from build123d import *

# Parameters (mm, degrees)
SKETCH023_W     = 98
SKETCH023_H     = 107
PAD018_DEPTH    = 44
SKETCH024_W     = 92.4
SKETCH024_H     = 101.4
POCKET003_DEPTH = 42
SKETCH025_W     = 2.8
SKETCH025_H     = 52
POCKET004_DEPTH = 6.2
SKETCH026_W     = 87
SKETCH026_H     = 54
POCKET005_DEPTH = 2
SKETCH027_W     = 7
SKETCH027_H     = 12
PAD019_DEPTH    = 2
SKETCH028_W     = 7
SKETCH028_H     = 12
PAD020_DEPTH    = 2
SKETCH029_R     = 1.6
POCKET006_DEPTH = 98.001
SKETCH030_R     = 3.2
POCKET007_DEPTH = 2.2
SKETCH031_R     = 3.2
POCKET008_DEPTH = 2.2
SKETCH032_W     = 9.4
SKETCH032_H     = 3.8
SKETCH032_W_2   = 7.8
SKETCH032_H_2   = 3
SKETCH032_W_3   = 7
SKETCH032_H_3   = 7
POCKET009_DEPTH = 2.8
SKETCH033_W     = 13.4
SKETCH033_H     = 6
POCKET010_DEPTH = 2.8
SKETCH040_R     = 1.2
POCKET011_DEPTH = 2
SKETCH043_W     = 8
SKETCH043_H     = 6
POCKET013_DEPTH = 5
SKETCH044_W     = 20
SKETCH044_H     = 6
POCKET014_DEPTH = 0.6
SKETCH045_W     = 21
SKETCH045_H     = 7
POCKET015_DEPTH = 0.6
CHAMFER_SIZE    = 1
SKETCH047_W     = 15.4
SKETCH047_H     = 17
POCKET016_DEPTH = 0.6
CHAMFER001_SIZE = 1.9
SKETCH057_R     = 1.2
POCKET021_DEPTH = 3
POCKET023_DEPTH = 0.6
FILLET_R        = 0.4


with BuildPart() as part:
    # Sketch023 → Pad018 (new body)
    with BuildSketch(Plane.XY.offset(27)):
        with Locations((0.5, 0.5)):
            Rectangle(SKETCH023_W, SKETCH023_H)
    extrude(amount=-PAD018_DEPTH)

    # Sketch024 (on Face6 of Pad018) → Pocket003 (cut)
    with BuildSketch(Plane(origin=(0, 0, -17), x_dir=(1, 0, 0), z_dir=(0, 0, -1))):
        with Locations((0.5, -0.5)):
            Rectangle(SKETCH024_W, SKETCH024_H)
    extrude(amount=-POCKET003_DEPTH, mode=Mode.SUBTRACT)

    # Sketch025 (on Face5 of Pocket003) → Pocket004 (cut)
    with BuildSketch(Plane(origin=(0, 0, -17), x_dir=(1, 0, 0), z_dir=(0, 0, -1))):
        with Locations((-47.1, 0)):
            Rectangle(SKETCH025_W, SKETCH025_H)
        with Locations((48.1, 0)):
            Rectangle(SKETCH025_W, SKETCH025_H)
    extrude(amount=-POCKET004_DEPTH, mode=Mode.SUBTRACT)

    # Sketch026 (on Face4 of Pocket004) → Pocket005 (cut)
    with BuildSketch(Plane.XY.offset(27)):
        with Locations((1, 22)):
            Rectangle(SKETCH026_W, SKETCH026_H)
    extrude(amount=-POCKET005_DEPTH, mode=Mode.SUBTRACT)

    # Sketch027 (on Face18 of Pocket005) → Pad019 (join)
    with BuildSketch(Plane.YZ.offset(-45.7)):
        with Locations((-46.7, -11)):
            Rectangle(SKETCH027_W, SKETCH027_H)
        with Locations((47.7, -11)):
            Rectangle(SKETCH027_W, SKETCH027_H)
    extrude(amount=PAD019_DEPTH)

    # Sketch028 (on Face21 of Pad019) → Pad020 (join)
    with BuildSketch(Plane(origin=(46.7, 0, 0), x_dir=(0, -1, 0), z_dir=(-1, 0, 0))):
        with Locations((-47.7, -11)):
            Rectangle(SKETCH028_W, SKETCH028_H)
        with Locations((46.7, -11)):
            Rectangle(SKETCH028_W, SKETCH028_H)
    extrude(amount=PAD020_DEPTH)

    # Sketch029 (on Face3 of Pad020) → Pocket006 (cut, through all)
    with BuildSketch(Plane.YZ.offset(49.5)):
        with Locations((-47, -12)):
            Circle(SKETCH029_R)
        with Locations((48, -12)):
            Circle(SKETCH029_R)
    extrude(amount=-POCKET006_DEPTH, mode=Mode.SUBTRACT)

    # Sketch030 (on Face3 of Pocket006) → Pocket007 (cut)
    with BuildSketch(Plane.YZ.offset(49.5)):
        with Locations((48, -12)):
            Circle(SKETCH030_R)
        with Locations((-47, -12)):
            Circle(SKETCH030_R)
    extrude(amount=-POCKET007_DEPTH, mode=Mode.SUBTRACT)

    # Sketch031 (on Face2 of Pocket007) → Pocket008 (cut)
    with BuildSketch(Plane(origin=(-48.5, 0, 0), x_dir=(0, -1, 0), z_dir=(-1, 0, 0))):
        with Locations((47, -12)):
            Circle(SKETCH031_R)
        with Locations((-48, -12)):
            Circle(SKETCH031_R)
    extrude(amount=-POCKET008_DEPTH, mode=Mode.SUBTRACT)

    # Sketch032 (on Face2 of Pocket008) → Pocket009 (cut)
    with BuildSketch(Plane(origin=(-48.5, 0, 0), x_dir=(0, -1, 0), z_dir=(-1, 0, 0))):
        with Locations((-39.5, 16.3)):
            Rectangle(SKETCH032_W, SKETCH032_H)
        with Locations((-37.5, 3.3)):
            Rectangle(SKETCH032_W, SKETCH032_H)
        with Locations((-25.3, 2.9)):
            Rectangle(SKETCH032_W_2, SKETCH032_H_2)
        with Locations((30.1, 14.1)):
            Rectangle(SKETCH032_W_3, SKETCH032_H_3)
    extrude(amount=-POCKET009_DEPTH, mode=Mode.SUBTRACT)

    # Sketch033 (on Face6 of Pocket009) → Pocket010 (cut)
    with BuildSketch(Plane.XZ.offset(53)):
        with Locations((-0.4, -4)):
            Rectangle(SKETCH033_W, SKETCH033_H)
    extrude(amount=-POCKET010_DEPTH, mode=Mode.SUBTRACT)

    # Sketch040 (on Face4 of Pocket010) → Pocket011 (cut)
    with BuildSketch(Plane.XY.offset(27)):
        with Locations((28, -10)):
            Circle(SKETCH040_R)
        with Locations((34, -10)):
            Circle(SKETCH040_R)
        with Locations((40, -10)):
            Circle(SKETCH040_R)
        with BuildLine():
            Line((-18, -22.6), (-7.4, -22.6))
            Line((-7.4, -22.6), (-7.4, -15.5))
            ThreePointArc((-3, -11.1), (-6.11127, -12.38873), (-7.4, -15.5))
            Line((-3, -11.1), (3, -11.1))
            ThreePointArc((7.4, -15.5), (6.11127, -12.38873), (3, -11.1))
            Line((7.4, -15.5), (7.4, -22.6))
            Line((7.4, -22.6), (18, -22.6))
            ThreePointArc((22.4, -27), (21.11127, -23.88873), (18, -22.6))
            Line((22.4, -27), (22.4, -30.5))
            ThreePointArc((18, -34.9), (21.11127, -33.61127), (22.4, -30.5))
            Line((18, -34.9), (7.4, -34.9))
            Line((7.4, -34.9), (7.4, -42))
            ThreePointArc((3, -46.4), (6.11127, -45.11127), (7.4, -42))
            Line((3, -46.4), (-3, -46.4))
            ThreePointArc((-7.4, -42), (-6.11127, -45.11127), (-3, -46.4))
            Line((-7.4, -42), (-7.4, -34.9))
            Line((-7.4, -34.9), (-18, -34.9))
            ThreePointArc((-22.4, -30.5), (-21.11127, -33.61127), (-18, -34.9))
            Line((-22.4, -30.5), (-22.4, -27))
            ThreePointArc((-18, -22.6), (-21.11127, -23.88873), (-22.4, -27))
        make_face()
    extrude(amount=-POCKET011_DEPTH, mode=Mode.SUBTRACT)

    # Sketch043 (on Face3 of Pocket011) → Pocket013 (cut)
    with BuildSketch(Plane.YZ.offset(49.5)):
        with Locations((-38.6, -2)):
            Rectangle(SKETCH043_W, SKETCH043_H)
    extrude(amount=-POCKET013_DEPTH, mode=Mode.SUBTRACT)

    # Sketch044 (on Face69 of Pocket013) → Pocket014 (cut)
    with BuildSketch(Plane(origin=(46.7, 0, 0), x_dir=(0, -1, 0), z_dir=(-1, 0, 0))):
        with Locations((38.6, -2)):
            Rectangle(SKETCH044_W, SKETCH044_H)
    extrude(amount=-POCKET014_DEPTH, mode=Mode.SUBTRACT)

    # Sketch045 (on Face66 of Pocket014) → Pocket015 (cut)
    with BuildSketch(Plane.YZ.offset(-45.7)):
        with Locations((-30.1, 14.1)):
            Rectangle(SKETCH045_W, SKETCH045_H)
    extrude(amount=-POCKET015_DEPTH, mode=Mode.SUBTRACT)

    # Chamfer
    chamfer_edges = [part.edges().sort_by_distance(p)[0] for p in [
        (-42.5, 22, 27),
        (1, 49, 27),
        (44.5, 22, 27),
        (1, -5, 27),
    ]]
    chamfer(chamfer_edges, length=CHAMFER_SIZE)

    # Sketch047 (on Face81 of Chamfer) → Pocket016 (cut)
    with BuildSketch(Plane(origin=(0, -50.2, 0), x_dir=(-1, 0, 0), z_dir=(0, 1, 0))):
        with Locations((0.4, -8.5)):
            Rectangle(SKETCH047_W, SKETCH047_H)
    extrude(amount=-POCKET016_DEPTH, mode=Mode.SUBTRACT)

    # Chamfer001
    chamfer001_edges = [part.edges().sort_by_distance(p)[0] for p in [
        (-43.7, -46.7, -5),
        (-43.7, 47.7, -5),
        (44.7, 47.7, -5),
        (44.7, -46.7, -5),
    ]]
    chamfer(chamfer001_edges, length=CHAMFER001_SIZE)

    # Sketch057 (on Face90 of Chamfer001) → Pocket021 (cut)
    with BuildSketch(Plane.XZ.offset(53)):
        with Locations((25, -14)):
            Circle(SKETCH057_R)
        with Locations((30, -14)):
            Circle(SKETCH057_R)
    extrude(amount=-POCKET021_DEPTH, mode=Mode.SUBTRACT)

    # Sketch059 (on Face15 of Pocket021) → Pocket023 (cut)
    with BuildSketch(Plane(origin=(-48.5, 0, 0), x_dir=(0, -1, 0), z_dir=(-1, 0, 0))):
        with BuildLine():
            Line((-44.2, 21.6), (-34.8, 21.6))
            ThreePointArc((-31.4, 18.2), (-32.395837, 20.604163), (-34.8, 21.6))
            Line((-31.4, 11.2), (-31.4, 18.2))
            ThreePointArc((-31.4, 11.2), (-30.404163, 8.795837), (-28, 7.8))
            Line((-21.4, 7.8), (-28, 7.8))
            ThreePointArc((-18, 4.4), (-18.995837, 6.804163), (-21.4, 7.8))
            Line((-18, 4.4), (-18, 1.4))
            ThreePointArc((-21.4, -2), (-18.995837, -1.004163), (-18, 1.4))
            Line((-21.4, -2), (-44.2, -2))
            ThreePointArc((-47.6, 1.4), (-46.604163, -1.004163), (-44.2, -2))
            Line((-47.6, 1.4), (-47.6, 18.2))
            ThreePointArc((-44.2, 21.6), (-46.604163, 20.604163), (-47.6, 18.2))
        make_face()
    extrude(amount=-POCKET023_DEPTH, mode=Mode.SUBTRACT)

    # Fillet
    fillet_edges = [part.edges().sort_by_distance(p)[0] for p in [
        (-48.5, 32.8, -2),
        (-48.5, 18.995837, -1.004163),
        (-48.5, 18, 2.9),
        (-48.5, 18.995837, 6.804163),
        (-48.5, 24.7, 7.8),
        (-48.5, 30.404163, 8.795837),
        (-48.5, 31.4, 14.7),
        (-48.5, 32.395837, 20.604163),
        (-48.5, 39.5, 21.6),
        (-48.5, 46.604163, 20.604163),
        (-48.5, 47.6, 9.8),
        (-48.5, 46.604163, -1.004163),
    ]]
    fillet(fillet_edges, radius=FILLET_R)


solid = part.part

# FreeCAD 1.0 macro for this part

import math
import FreeCAD as App
import Part
import Sketcher
Q = App.Units.Quantity


def edges_at(feature, points):
    """Names of the edges that pass closest to the given points."""
    edges = feature.Shape.Edges
    near = lambda p: min(range(len(edges)), key=lambda i: edges[i].distToShape(Part.Vertex(*p))[0])
    return sorted({f"Edge{near(p) + 1}" for p in points})

doc = App.newDocument("Part")
body = doc.addObject("PartDesign::Body", "Body")

# Sketch on XY plane
sketch1 = doc.addObject("Sketcher::SketchObject", "Sketch")
body.addObject(sketch1)
sketch1.AttachmentSupport = (doc.XY_Plane, [""])
sketch1.MapMode = "FlatFace"
sketch1.AttachmentOffset = App.Placement(App.Vector(0, 0, 27), App.Rotation())
sketch1.addGeometry([
    Part.LineSegment(App.Vector(-48.5, 54, 0), App.Vector(-48.5, -53, 0)),
    Part.LineSegment(App.Vector(-48.5, -53, 0), App.Vector(49.5, -53, 0)),
    Part.LineSegment(App.Vector(49.5, -53, 0), App.Vector(49.5, 54, 0)),
    Part.LineSegment(App.Vector(49.5, 54, 0), App.Vector(-48.5, 54, 0)),
], False)
sketch1.addConstraint([
    Sketcher.Constraint("Coincident", 0, 2, 1, 1),
    Sketcher.Constraint("Coincident", 1, 2, 2, 1),
    Sketcher.Constraint("Coincident", 2, 2, 3, 1),
    Sketcher.Constraint("Coincident", 3, 2, 0, 1),
    Sketcher.Constraint("Vertical", 0),
    Sketcher.Constraint("Horizontal", 1),
    Sketcher.Constraint("Vertical", 2),
    Sketcher.Constraint("Horizontal", 3),
    Sketcher.Constraint("DistanceX", 1, 1, 1, 2, Q("98 mm")),
    Sketcher.Constraint("DistanceY", 0, 2, 0, 1, Q("107 mm")),
    Sketcher.Constraint("DistanceY", 0, 2, -1, 1, Q("53 mm")),
    Sketcher.Constraint("DistanceX", 0, 2, -1, 1, Q("48.5 mm")),
])
pad1 = doc.addObject("PartDesign::Pad", "Pad")
body.addObject(pad1)
pad1.Profile = sketch1
pad1.Length = 44
pad1.Reversed = True

# Sketch on XY plane
sketch2 = doc.addObject("Sketcher::SketchObject", "Sketch001")
body.addObject(sketch2)
sketch2.AttachmentSupport = (doc.XY_Plane, [""])
sketch2.MapMode = "FlatFace"
sketch2.AttachmentOffset = App.Placement(App.Vector(0, 0, -17), App.Rotation())
sketch2.addGeometry([
    Part.LineSegment(App.Vector(-45.7, -50.2, 0), App.Vector(-45.7, 51.2, 0)),
    Part.LineSegment(App.Vector(-45.7, 51.2, 0), App.Vector(46.7, 51.2, 0)),
    Part.LineSegment(App.Vector(46.7, 51.2, 0), App.Vector(46.7, -50.2, 0)),
    Part.LineSegment(App.Vector(46.7, -50.2, 0), App.Vector(-45.7, -50.2, 0)),
], False)
sketch2.addConstraint([
    Sketcher.Constraint("Coincident", 0, 2, 1, 1),
    Sketcher.Constraint("Coincident", 1, 2, 2, 1),
    Sketcher.Constraint("Coincident", 2, 2, 3, 1),
    Sketcher.Constraint("Coincident", 3, 2, 0, 1),
    Sketcher.Constraint("Vertical", 0),
    Sketcher.Constraint("Horizontal", 1),
    Sketcher.Constraint("Vertical", 2),
    Sketcher.Constraint("Horizontal", 3),
    Sketcher.Constraint("DistanceX", 1, 1, 1, 2, Q("92.4 mm")),
    Sketcher.Constraint("DistanceY", 0, 1, 0, 2, Q("101.4 mm")),
    Sketcher.Constraint("DistanceX", 0, 2, -1, 1, Q("45.7 mm")),
    Sketcher.Constraint("DistanceY", -1, 1, 0, 2, Q("51.2 mm")),
])
pocket1 = doc.addObject("PartDesign::Pocket", "Pocket")
body.addObject(pocket1)
pocket1.Profile = sketch2
pocket1.Length = 42
pocket1.Reversed = True

# Sketch on XY plane
sketch3 = doc.addObject("Sketcher::SketchObject", "Sketch002")
body.addObject(sketch3)
sketch3.AttachmentSupport = (doc.XY_Plane, [""])
sketch3.MapMode = "FlatFace"
sketch3.AttachmentOffset = App.Placement(App.Vector(0, 0, -17), App.Rotation())
sketch3.addGeometry([
    Part.LineSegment(App.Vector(-48.5, -26, 0), App.Vector(-48.5, 26, 0)),  # 0
    Part.LineSegment(App.Vector(-48.5, 26, 0), App.Vector(-45.7, 26, 0)),  # 1
    Part.LineSegment(App.Vector(-45.7, 26, 0), App.Vector(-45.7, -26, 0)),  # 2
    Part.LineSegment(App.Vector(-45.7, -26, 0), App.Vector(-48.5, -26, 0)),  # 3
    Part.LineSegment(App.Vector(46.7, -26, 0), App.Vector(46.7, 26, 0)),  # 4
    Part.LineSegment(App.Vector(46.7, 26, 0), App.Vector(49.5, 26, 0)),  # 5
    Part.LineSegment(App.Vector(49.5, 26, 0), App.Vector(49.5, -26, 0)),  # 6
    Part.LineSegment(App.Vector(49.5, -26, 0), App.Vector(46.7, -26, 0)),  # 7
], False)
sketch3.addConstraint([
    Sketcher.Constraint("Coincident", 0, 2, 1, 1),
    Sketcher.Constraint("Coincident", 1, 2, 2, 1),
    Sketcher.Constraint("Coincident", 2, 2, 3, 1),
    Sketcher.Constraint("Coincident", 3, 2, 0, 1),
    Sketcher.Constraint("Coincident", 4, 2, 5, 1),
    Sketcher.Constraint("Coincident", 5, 2, 6, 1),
    Sketcher.Constraint("Coincident", 6, 2, 7, 1),
    Sketcher.Constraint("Coincident", 7, 2, 4, 1),
    Sketcher.Constraint("Vertical", 0),
    Sketcher.Constraint("Horizontal", 1),
    Sketcher.Constraint("Vertical", 2),
    Sketcher.Constraint("Horizontal", 3),
    Sketcher.Constraint("Vertical", 4),
    Sketcher.Constraint("Horizontal", 5),
    Sketcher.Constraint("Vertical", 6),
    Sketcher.Constraint("Horizontal", 7),
    Sketcher.Constraint("Horizontal", 1, 2, 4, 2),
    Sketcher.Constraint("Horizontal", 3, 2, 6, 2),
    Sketcher.Constraint("Equal", 3, 5),
    Sketcher.Constraint("DistanceY", 0, 1, 0, 2, Q("52 mm")),
    Sketcher.Constraint("DistanceX", 1, 1, 1, 2, Q("2.8 mm")),
    Sketcher.Constraint("DistanceY", -1, 1, 0, 2, Q("26 mm")),
    Sketcher.Constraint("DistanceX", 0, 2, 5, 2, Q("98 mm")),
    Sketcher.Constraint("DistanceX", 0, 2, -1, 1, Q("48.5 mm")),
])
pocket2 = doc.addObject("PartDesign::Pocket", "Pocket001")
body.addObject(pocket2)
pocket2.Profile = sketch3
pocket2.Length = 6.2
pocket2.Reversed = True

# Sketch on XY plane
sketch4 = doc.addObject("Sketcher::SketchObject", "Sketch003")
body.addObject(sketch4)
sketch4.AttachmentSupport = (doc.XY_Plane, [""])
sketch4.MapMode = "FlatFace"
sketch4.AttachmentOffset = App.Placement(App.Vector(0, 0, 27), App.Rotation())
sketch4.addGeometry([
    Part.LineSegment(App.Vector(-42.5, 49, 0), App.Vector(-42.5, -5, 0)),
    Part.LineSegment(App.Vector(-42.5, -5, 0), App.Vector(44.5, -5, 0)),
    Part.LineSegment(App.Vector(44.5, -5, 0), App.Vector(44.5, 49, 0)),
    Part.LineSegment(App.Vector(44.5, 49, 0), App.Vector(-42.5, 49, 0)),
], False)
sketch4.addConstraint([
    Sketcher.Constraint("Coincident", 0, 2, 1, 1),
    Sketcher.Constraint("Coincident", 1, 2, 2, 1),
    Sketcher.Constraint("Coincident", 2, 2, 3, 1),
    Sketcher.Constraint("Coincident", 3, 2, 0, 1),
    Sketcher.Constraint("Vertical", 0),
    Sketcher.Constraint("Horizontal", 1),
    Sketcher.Constraint("Vertical", 2),
    Sketcher.Constraint("Horizontal", 3),
    Sketcher.Constraint("DistanceX", 1, 1, 1, 2, Q("87 mm")),
    Sketcher.Constraint("DistanceY", 0, 2, 0, 1, Q("54 mm")),
    Sketcher.Constraint("DistanceY", 0, 2, -1, 1, Q("5 mm")),
    Sketcher.Constraint("DistanceX", 0, 2, -1, 1, Q("42.5 mm")),
])
pocket3 = doc.addObject("PartDesign::Pocket", "Pocket002")
body.addObject(pocket3)
pocket3.Profile = sketch4
pocket3.Length = 2

# Sketch on YZ plane
sketch5 = doc.addObject("Sketcher::SketchObject", "Sketch004")
body.addObject(sketch5)
sketch5.AttachmentSupport = (doc.YZ_Plane, [""])
sketch5.MapMode = "FlatFace"
sketch5.AttachmentOffset = App.Placement(App.Vector(0, 0, -45.7), App.Rotation())
sketch5.addGeometry([
    Part.LineSegment(App.Vector(-50.2, -5, 0), App.Vector(-50.2, -17, 0)),  # 0
    Part.LineSegment(App.Vector(-50.2, -17, 0), App.Vector(-43.2, -17, 0)),  # 1
    Part.LineSegment(App.Vector(-43.2, -17, 0), App.Vector(-43.2, -5, 0)),  # 2
    Part.LineSegment(App.Vector(-43.2, -5, 0), App.Vector(-50.2, -5, 0)),  # 3
    Part.LineSegment(App.Vector(44.2, -5, 0), App.Vector(44.2, -17, 0)),  # 4
    Part.LineSegment(App.Vector(44.2, -17, 0), App.Vector(51.2, -17, 0)),  # 5
    Part.LineSegment(App.Vector(51.2, -17, 0), App.Vector(51.2, -5, 0)),  # 6
    Part.LineSegment(App.Vector(51.2, -5, 0), App.Vector(44.2, -5, 0)),  # 7
], False)
sketch5.addConstraint([
    Sketcher.Constraint("Coincident", 0, 2, 1, 1),
    Sketcher.Constraint("Coincident", 1, 2, 2, 1),
    Sketcher.Constraint("Coincident", 2, 2, 3, 1),
    Sketcher.Constraint("Coincident", 3, 2, 0, 1),
    Sketcher.Constraint("Coincident", 4, 2, 5, 1),
    Sketcher.Constraint("Coincident", 5, 2, 6, 1),
    Sketcher.Constraint("Coincident", 6, 2, 7, 1),
    Sketcher.Constraint("Coincident", 7, 2, 4, 1),
    Sketcher.Constraint("Vertical", 0),
    Sketcher.Constraint("Horizontal", 1),
    Sketcher.Constraint("Vertical", 2),
    Sketcher.Constraint("Horizontal", 3),
    Sketcher.Constraint("Vertical", 4),
    Sketcher.Constraint("Horizontal", 5),
    Sketcher.Constraint("Vertical", 6),
    Sketcher.Constraint("Horizontal", 7),
    Sketcher.Constraint("Horizontal", 1, 2, 4, 2),
    Sketcher.Constraint("Horizontal", 3, 2, 6, 2),
    Sketcher.Constraint("Equal", 3, 5),
    Sketcher.Constraint("DistanceX", 1, 1, 1, 2, Q("7 mm")),
    Sketcher.Constraint("DistanceY", 0, 2, 0, 1, Q("12 mm")),
    Sketcher.Constraint("DistanceY", 0, 2, -1, 1, Q("17 mm")),
    Sketcher.Constraint("DistanceX", 0, 2, -1, 1, Q("50.2 mm")),
    Sketcher.Constraint("DistanceX", -1, 1, 4, 2, Q("44.2 mm")),
])
pad2 = doc.addObject("PartDesign::Pad", "Pad001")
body.addObject(pad2)
pad2.Profile = sketch5
pad2.Length = 2

# Sketch on YZ plane
sketch6 = doc.addObject("Sketcher::SketchObject", "Sketch005")
body.addObject(sketch6)
sketch6.AttachmentSupport = (doc.YZ_Plane, [""])
sketch6.MapMode = "FlatFace"
sketch6.AttachmentOffset = App.Placement(App.Vector(0, 0, 46.7), App.Rotation())
sketch6.addGeometry([
    Part.LineSegment(App.Vector(51.2, -5, 0), App.Vector(51.2, -17, 0)),  # 0
    Part.LineSegment(App.Vector(51.2, -17, 0), App.Vector(44.2, -17, 0)),  # 1
    Part.LineSegment(App.Vector(44.2, -17, 0), App.Vector(44.2, -5, 0)),  # 2
    Part.LineSegment(App.Vector(44.2, -5, 0), App.Vector(51.2, -5, 0)),  # 3
    Part.LineSegment(App.Vector(-43.2, -5, 0), App.Vector(-43.2, -17, 0)),  # 4
    Part.LineSegment(App.Vector(-43.2, -17, 0), App.Vector(-50.2, -17, 0)),  # 5
    Part.LineSegment(App.Vector(-50.2, -17, 0), App.Vector(-50.2, -5, 0)),  # 6
    Part.LineSegment(App.Vector(-50.2, -5, 0), App.Vector(-43.2, -5, 0)),  # 7
], False)
sketch6.addConstraint([
    Sketcher.Constraint("Coincident", 0, 2, 1, 1),
    Sketcher.Constraint("Coincident", 1, 2, 2, 1),
    Sketcher.Constraint("Coincident", 2, 2, 3, 1),
    Sketcher.Constraint("Coincident", 3, 2, 0, 1),
    Sketcher.Constraint("Coincident", 4, 2, 5, 1),
    Sketcher.Constraint("Coincident", 5, 2, 6, 1),
    Sketcher.Constraint("Coincident", 6, 2, 7, 1),
    Sketcher.Constraint("Coincident", 7, 2, 4, 1),
    Sketcher.Constraint("Vertical", 0),
    Sketcher.Constraint("Horizontal", 1),
    Sketcher.Constraint("Vertical", 2),
    Sketcher.Constraint("Horizontal", 3),
    Sketcher.Constraint("Vertical", 4),
    Sketcher.Constraint("Horizontal", 5),
    Sketcher.Constraint("Vertical", 6),
    Sketcher.Constraint("Horizontal", 7),
    Sketcher.Constraint("Horizontal", 1, 2, 4, 2),
    Sketcher.Constraint("Horizontal", 3, 2, 6, 2),
    Sketcher.Constraint("Equal", 3, 5),
    Sketcher.Constraint("DistanceX", 1, 2, 1, 1, Q("7 mm")),
    Sketcher.Constraint("DistanceY", 0, 2, 0, 1, Q("12 mm")),
    Sketcher.Constraint("DistanceY", 0, 2, -1, 1, Q("17 mm")),
    Sketcher.Constraint("DistanceX", -1, 1, 0, 2, Q("51.2 mm")),
    Sketcher.Constraint("DistanceX", 4, 2, -1, 1, Q("43.2 mm")),
])
pad3 = doc.addObject("PartDesign::Pad", "Pad002")
body.addObject(pad3)
pad3.Profile = sketch6
pad3.Length = 2
pad3.Reversed = True

# Sketch on YZ plane
sketch7 = doc.addObject("Sketcher::SketchObject", "Sketch006")
body.addObject(sketch7)
sketch7.AttachmentSupport = (doc.YZ_Plane, [""])
sketch7.MapMode = "FlatFace"
sketch7.AttachmentOffset = App.Placement(App.Vector(0, 0, 49.5), App.Rotation())
sketch7.addGeometry([
    Part.Circle(App.Vector(-47, -12, 0), App.Vector(0, 0, 1), 1.6),
    Part.Circle(App.Vector(48, -12, 0), App.Vector(0, 0, 1), 1.6),
], False)
sketch7.addConstraint([
    Sketcher.Constraint("Equal", 0, 1),
    Sketcher.Constraint("Horizontal", 0, 3, 1, 3),
    Sketcher.Constraint("Diameter", 0, Q("3.2 mm")),
    Sketcher.Constraint("DistanceX", 0, 3, -1, 1, Q("47 mm")),
    Sketcher.Constraint("DistanceY", 0, 3, -1, 1, Q("12 mm")),
    Sketcher.Constraint("DistanceX", -1, 1, 1, 3, Q("48 mm")),
])
pocket4 = doc.addObject("PartDesign::Pocket", "Pocket003")
body.addObject(pocket4)
pocket4.Profile = sketch7
pocket4.Type = "ThroughAll"

# Sketch on YZ plane
sketch8 = doc.addObject("Sketcher::SketchObject", "Sketch007")
body.addObject(sketch8)
sketch8.AttachmentSupport = (doc.YZ_Plane, [""])
sketch8.MapMode = "FlatFace"
sketch8.AttachmentOffset = App.Placement(App.Vector(0, 0, 49.5), App.Rotation())
sketch8.addGeometry([
    Part.Circle(App.Vector(48, -12, 0), App.Vector(0, 0, 1), 3.2),
    Part.Circle(App.Vector(-47, -12, 0), App.Vector(0, 0, 1), 3.2),
], False)
sketch8.addConstraint([
    Sketcher.Constraint("Equal", 0, 1),
    Sketcher.Constraint("Horizontal", 0, 3, 1, 3),
    Sketcher.Constraint("Diameter", 0, Q("6.4 mm")),
    Sketcher.Constraint("DistanceX", -1, 1, 0, 3, Q("48 mm")),
    Sketcher.Constraint("DistanceY", 0, 3, -1, 1, Q("12 mm")),
    Sketcher.Constraint("DistanceX", 1, 3, -1, 1, Q("47 mm")),
])
pocket5 = doc.addObject("PartDesign::Pocket", "Pocket004")
body.addObject(pocket5)
pocket5.Profile = sketch8
pocket5.Length = 2.2

# Sketch on YZ plane
sketch9 = doc.addObject("Sketcher::SketchObject", "Sketch008")
body.addObject(sketch9)
sketch9.AttachmentSupport = (doc.YZ_Plane, [""])
sketch9.MapMode = "FlatFace"
sketch9.AttachmentOffset = App.Placement(App.Vector(0, 0, -48.5), App.Rotation())
sketch9.addGeometry([
    Part.Circle(App.Vector(-47, -12, 0), App.Vector(0, 0, 1), 3.2),
    Part.Circle(App.Vector(48, -12, 0), App.Vector(0, 0, 1), 3.2),
], False)
sketch9.addConstraint([
    Sketcher.Constraint("Equal", 0, 1),
    Sketcher.Constraint("Horizontal", 0, 3, 1, 3),
    Sketcher.Constraint("Diameter", 0, Q("6.4 mm")),
    Sketcher.Constraint("DistanceX", 0, 3, -1, 1, Q("47 mm")),
    Sketcher.Constraint("DistanceY", 0, 3, -1, 1, Q("12 mm")),
    Sketcher.Constraint("DistanceX", -1, 1, 1, 3, Q("48 mm")),
])
pocket6 = doc.addObject("PartDesign::Pocket", "Pocket005")
body.addObject(pocket6)
pocket6.Profile = sketch9
pocket6.Length = 2.2
pocket6.Reversed = True

# Sketch on YZ plane
sketch10 = doc.addObject("Sketcher::SketchObject", "Sketch009")
body.addObject(sketch10)
sketch10.AttachmentSupport = (doc.YZ_Plane, [""])
sketch10.MapMode = "FlatFace"
sketch10.AttachmentOffset = App.Placement(App.Vector(0, 0, -48.5), App.Rotation())
sketch10.addGeometry([
    Part.LineSegment(App.Vector(44.2, 18.2, 0), App.Vector(44.2, 14.4, 0)),  # 0
    Part.LineSegment(App.Vector(44.2, 14.4, 0), App.Vector(34.8, 14.4, 0)),  # 1
    Part.LineSegment(App.Vector(34.8, 14.4, 0), App.Vector(34.8, 18.2, 0)),  # 2
    Part.LineSegment(App.Vector(34.8, 18.2, 0), App.Vector(44.2, 18.2, 0)),  # 3
    Part.LineSegment(App.Vector(42.2, 5.2, 0), App.Vector(42.2, 1.4, 0)),  # 4
    Part.LineSegment(App.Vector(42.2, 1.4, 0), App.Vector(32.8, 1.4, 0)),  # 5
    Part.LineSegment(App.Vector(32.8, 1.4, 0), App.Vector(32.8, 5.2, 0)),  # 6
    Part.LineSegment(App.Vector(32.8, 5.2, 0), App.Vector(42.2, 5.2, 0)),  # 7
    Part.LineSegment(App.Vector(29.2, 4.4, 0), App.Vector(29.2, 1.4, 0)),  # 8
    Part.LineSegment(App.Vector(29.2, 1.4, 0), App.Vector(21.4, 1.4, 0)),  # 9
    Part.LineSegment(App.Vector(21.4, 1.4, 0), App.Vector(21.4, 4.4, 0)),  # 10
    Part.LineSegment(App.Vector(21.4, 4.4, 0), App.Vector(29.2, 4.4, 0)),  # 11
    Part.LineSegment(App.Vector(-26.6, 17.6, 0), App.Vector(-26.6, 10.6, 0)),  # 12
    Part.LineSegment(App.Vector(-26.6, 10.6, 0), App.Vector(-33.6, 10.6, 0)),  # 13
    Part.LineSegment(App.Vector(-33.6, 10.6, 0), App.Vector(-33.6, 17.6, 0)),  # 14
    Part.LineSegment(App.Vector(-33.6, 17.6, 0), App.Vector(-26.6, 17.6, 0)),  # 15
], False)
sketch10.addConstraint([
    Sketcher.Constraint("Coincident", 0, 2, 1, 1),
    Sketcher.Constraint("Coincident", 1, 2, 2, 1),
    Sketcher.Constraint("Coincident", 2, 2, 3, 1),
    Sketcher.Constraint("Coincident", 3, 2, 0, 1),
    Sketcher.Constraint("Coincident", 4, 2, 5, 1),
    Sketcher.Constraint("Coincident", 5, 2, 6, 1),
    Sketcher.Constraint("Coincident", 6, 2, 7, 1),
    Sketcher.Constraint("Coincident", 7, 2, 4, 1),
    Sketcher.Constraint("Coincident", 8, 2, 9, 1),
    Sketcher.Constraint("Coincident", 9, 2, 10, 1),
    Sketcher.Constraint("Coincident", 10, 2, 11, 1),
    Sketcher.Constraint("Coincident", 11, 2, 8, 1),
    Sketcher.Constraint("Coincident", 12, 2, 13, 1),
    Sketcher.Constraint("Coincident", 13, 2, 14, 1),
    Sketcher.Constraint("Coincident", 14, 2, 15, 1),
    Sketcher.Constraint("Coincident", 15, 2, 12, 1),
    Sketcher.Constraint("Vertical", 0),
    Sketcher.Constraint("Horizontal", 1),
    Sketcher.Constraint("Vertical", 2),
    Sketcher.Constraint("Horizontal", 3),
    Sketcher.Constraint("Vertical", 4),
    Sketcher.Constraint("Horizontal", 5),
    Sketcher.Constraint("Vertical", 6),
    Sketcher.Constraint("Horizontal", 7),
    Sketcher.Constraint("Vertical", 8),
    Sketcher.Constraint("Horizontal", 9),
    Sketcher.Constraint("Vertical", 10),
    Sketcher.Constraint("Horizontal", 11),
    Sketcher.Constraint("Vertical", 12),
    Sketcher.Constraint("Horizontal", 13),
    Sketcher.Constraint("Vertical", 14),
    Sketcher.Constraint("Horizontal", 15),
    Sketcher.Constraint("Horizontal", 5, 2, 8, 2),
    Sketcher.Constraint("Equal", 3, 5),
    Sketcher.Constraint("Equal", 2, 4),
    Sketcher.Constraint("Equal", 15, 12),
    Sketcher.Constraint("DistanceX", 13, 2, 13, 1, Q("7 mm")),
    Sketcher.Constraint("DistanceY", 8, 2, 8, 1, Q("3 mm")),
    Sketcher.Constraint("DistanceX", 1, 2, 1, 1, Q("9.4 mm")),
    Sketcher.Constraint("DistanceX", 9, 2, 9, 1, Q("7.8 mm")),
    Sketcher.Constraint("DistanceY", 0, 2, 0, 1, Q("3.8 mm")),
    Sketcher.Constraint("DistanceX", 4, 2, 0, 2, Q("2 mm")),
    Sketcher.Constraint("DistanceY", 4, 2, 0, 2, Q("13 mm")),
    Sketcher.Constraint("DistanceX", 8, 2, 4, 2, Q("13 mm")),
    Sketcher.Constraint("DistanceX", 12, 2, 10, 2, Q("48 mm")),
    Sketcher.Constraint("DistanceX", -1, 1, 0, 2, Q("44.2 mm")),
    Sketcher.Constraint("DistanceY", -1, 1, 0, 2, Q("14.4 mm")),
    Sketcher.Constraint("DistanceY", -1, 1, 12, 2, Q("10.6 mm")),
])
pocket7 = doc.addObject("PartDesign::Pocket", "Pocket006")
body.addObject(pocket7)
pocket7.Profile = sketch10
pocket7.Length = 2.8
pocket7.Reversed = True

# Sketch on XZ plane
sketch11 = doc.addObject("Sketcher::SketchObject", "Sketch010")
body.addObject(sketch11)
sketch11.AttachmentSupport = (doc.XZ_Plane, [""])
sketch11.MapMode = "FlatFace"
sketch11.AttachmentOffset = App.Placement(App.Vector(0, 0, 53), App.Rotation())
sketch11.addGeometry([
    Part.LineSegment(App.Vector(-7.1, -1, 0), App.Vector(-7.1, -7, 0)),
    Part.LineSegment(App.Vector(-7.1, -7, 0), App.Vector(6.3, -7, 0)),
    Part.LineSegment(App.Vector(6.3, -7, 0), App.Vector(6.3, -1, 0)),
    Part.LineSegment(App.Vector(6.3, -1, 0), App.Vector(-7.1, -1, 0)),
], False)
sketch11.addConstraint([
    Sketcher.Constraint("Coincident", 0, 2, 1, 1),
    Sketcher.Constraint("Coincident", 1, 2, 2, 1),
    Sketcher.Constraint("Coincident", 2, 2, 3, 1),
    Sketcher.Constraint("Coincident", 3, 2, 0, 1),
    Sketcher.Constraint("Vertical", 0),
    Sketcher.Constraint("Horizontal", 1),
    Sketcher.Constraint("Vertical", 2),
    Sketcher.Constraint("Horizontal", 3),
    Sketcher.Constraint("DistanceY", 0, 2, 0, 1, Q("6 mm")),
    Sketcher.Constraint("DistanceX", 1, 1, 1, 2, Q("13.4 mm")),
    Sketcher.Constraint("DistanceY", 0, 2, -1, 1, Q("7 mm")),
    Sketcher.Constraint("DistanceX", 0, 2, -1, 1, Q("7.1 mm")),
])
pocket8 = doc.addObject("PartDesign::Pocket", "Pocket007")
body.addObject(pocket8)
pocket8.Profile = sketch11
pocket8.Length = 2.8

# Sketch on XY plane
sketch12 = doc.addObject("Sketcher::SketchObject", "Sketch011")
body.addObject(sketch12)
sketch12.AttachmentSupport = (doc.XY_Plane, [""])
sketch12.MapMode = "FlatFace"
sketch12.AttachmentOffset = App.Placement(App.Vector(0, 0, 27), App.Rotation())
sketch12.addGeometry([
    Part.Circle(App.Vector(28, -10, 0), App.Vector(0, 0, 1), 1.2),  # 0
    Part.Circle(App.Vector(34, -10, 0), App.Vector(0, 0, 1), 1.2),  # 1
    Part.Circle(App.Vector(40, -10, 0), App.Vector(0, 0, 1), 1.2),  # 2
    Part.LineSegment(App.Vector(-7.4, -22.6, 0), App.Vector(-18, -22.6, 0)),  # 3
    Part.ArcOfCircle(Part.Circle(App.Vector(-18.000001, -26.999999, 0), App.Vector(0, 0, 1), 4.399999), math.radians(89.999993), math.radians(180.000007)),  # 4
    Part.LineSegment(App.Vector(-22.4, -27, 0), App.Vector(-22.4, -30.5, 0)),  # 5
    Part.ArcOfCircle(Part.Circle(App.Vector(-18.000001, -30.500001, 0), App.Vector(0, 0, 1), 4.399999), math.radians(179.999993), math.radians(270.000007)),  # 6
    Part.LineSegment(App.Vector(-18, -34.9, 0), App.Vector(-7.4, -34.9, 0)),  # 7
    Part.LineSegment(App.Vector(-7.4, -34.9, 0), App.Vector(-7.4, -42, 0)),  # 8
    Part.ArcOfCircle(Part.Circle(App.Vector(-3.000001, -42.000001, 0), App.Vector(0, 0, 1), 4.399999), math.radians(179.999993), math.radians(270.000007)),  # 9
    Part.LineSegment(App.Vector(-3, -46.4, 0), App.Vector(3, -46.4, 0)),  # 10
    Part.ArcOfCircle(Part.Circle(App.Vector(3.000001, -42.000001, 0), App.Vector(0, 0, 1), 4.399999), math.radians(-90.000007), math.radians(0.000007)),  # 11
    Part.LineSegment(App.Vector(7.4, -42, 0), App.Vector(7.4, -34.9, 0)),  # 12
    Part.LineSegment(App.Vector(7.4, -34.9, 0), App.Vector(18, -34.9, 0)),  # 13
    Part.ArcOfCircle(Part.Circle(App.Vector(18.000001, -30.500001, 0), App.Vector(0, 0, 1), 4.399999), math.radians(-90.000007), math.radians(0.000007)),  # 14
    Part.LineSegment(App.Vector(22.4, -30.5, 0), App.Vector(22.4, -27, 0)),  # 15
    Part.ArcOfCircle(Part.Circle(App.Vector(18.000001, -26.999999, 0), App.Vector(0, 0, 1), 4.399999), math.radians(-0.000007), math.radians(90.000007)),  # 16
    Part.LineSegment(App.Vector(18, -22.6, 0), App.Vector(7.4, -22.6, 0)),  # 17
    Part.LineSegment(App.Vector(7.4, -22.6, 0), App.Vector(7.4, -15.5, 0)),  # 18
    Part.ArcOfCircle(Part.Circle(App.Vector(3.000001, -15.499999, 0), App.Vector(0, 0, 1), 4.399999), math.radians(-0.000007), math.radians(90.000007)),  # 19
    Part.LineSegment(App.Vector(3, -11.1, 0), App.Vector(-3, -11.1, 0)),  # 20
    Part.ArcOfCircle(Part.Circle(App.Vector(-3.000001, -15.499999, 0), App.Vector(0, 0, 1), 4.399999), math.radians(89.999993), math.radians(180.000007)),  # 21
    Part.LineSegment(App.Vector(-7.4, -15.5, 0), App.Vector(-7.4, -22.6, 0)),  # 22
], False)
sketch12.addConstraint([
    Sketcher.Constraint("Tangent", 3, 2, 4, 1),
    Sketcher.Constraint("Tangent", 4, 2, 5, 1),
    Sketcher.Constraint("Tangent", 5, 2, 6, 1),
    Sketcher.Constraint("Tangent", 6, 2, 7, 1),
    Sketcher.Constraint("Coincident", 7, 2, 8, 1),
    Sketcher.Constraint("Tangent", 8, 2, 9, 1),
    Sketcher.Constraint("Tangent", 9, 2, 10, 1),
    Sketcher.Constraint("Tangent", 10, 2, 11, 1),
    Sketcher.Constraint("Tangent", 11, 2, 12, 1),
    Sketcher.Constraint("Coincident", 12, 2, 13, 1),
    Sketcher.Constraint("Tangent", 13, 2, 14, 1),
    Sketcher.Constraint("Tangent", 14, 2, 15, 1),
    Sketcher.Constraint("Tangent", 15, 2, 16, 1),
    Sketcher.Constraint("Tangent", 16, 2, 17, 1),
    Sketcher.Constraint("Coincident", 17, 2, 18, 1),
    Sketcher.Constraint("Tangent", 18, 2, 19, 1),
    Sketcher.Constraint("Tangent", 19, 2, 20, 1),
    Sketcher.Constraint("Tangent", 20, 2, 21, 1),
    Sketcher.Constraint("Tangent", 21, 2, 22, 1),
    Sketcher.Constraint("Coincident", 22, 2, 3, 1),
    Sketcher.Constraint("Horizontal", 3),
    Sketcher.Constraint("Vertical", 5),
    Sketcher.Constraint("Horizontal", 7),
    Sketcher.Constraint("Vertical", 8),
    Sketcher.Constraint("Horizontal", 10),
    Sketcher.Constraint("Vertical", 12),
    Sketcher.Constraint("Horizontal", 13),
    Sketcher.Constraint("Vertical", 15),
    Sketcher.Constraint("Horizontal", 17),
    Sketcher.Constraint("Vertical", 18),
    Sketcher.Constraint("Horizontal", 20),
    Sketcher.Constraint("Vertical", 22),
    Sketcher.Constraint("Equal", 0, 1),
    Sketcher.Constraint("Equal", 1, 2),
    Sketcher.Constraint("Equal", 4, 6),
    Sketcher.Constraint("Equal", 6, 9),
    Sketcher.Constraint("Equal", 9, 11),
    Sketcher.Constraint("Equal", 11, 14),
    Sketcher.Constraint("Equal", 14, 16),
    Sketcher.Constraint("Equal", 16, 19),
    Sketcher.Constraint("Equal", 19, 21),
    Sketcher.Constraint("Symmetric", 6, 3, 14, 3, -2),
    Sketcher.Constraint("Symmetric", 17, 2, 22, 2, -2),
    Sketcher.Constraint("Horizontal", 0, 3, 1, 3),
    Sketcher.Constraint("Horizontal", 1, 3, 2, 3),
    Sketcher.Constraint("Vertical", 11, 3, 19, 3),
    Sketcher.Constraint("Vertical", 9, 3, 21, 3),
    Sketcher.Constraint("Equal", 12, 18),
    Sketcher.Constraint("Diameter", 0, Q("2.4 mm")),
    Sketcher.Constraint("Radius", 4, Q("4.399999 mm")),
    Sketcher.Constraint("DistanceX", 10, 1, 10, 2, Q("6 mm")),
    Sketcher.Constraint("DistanceX", 3, 2, 3, 1, Q("10.6 mm")),
    Sketcher.Constraint("DistanceY", 5, 2, 5, 1, Q("3.5 mm")),
    Sketcher.Constraint("DistanceY", 8, 2, 8, 1, Q("7.1 mm")),
    Sketcher.Constraint("DistanceX", -1, 1, 0, 3, Q("28 mm")),
    Sketcher.Constraint("DistanceY", 0, 3, -1, 1, Q("10 mm")),
    Sketcher.Constraint("DistanceX", -1, 1, 1, 3, Q("34 mm")),
    Sketcher.Constraint("DistanceX", -1, 1, 2, 3, Q("40 mm")),
    Sketcher.Constraint("DistanceY", 4, 3, -1, 1, Q("26.999999 mm")),
])
pocket9 = doc.addObject("PartDesign::Pocket", "Pocket008")
body.addObject(pocket9)
pocket9.Profile = sketch12
pocket9.Length = 2

# Sketch on YZ plane
sketch13 = doc.addObject("Sketcher::SketchObject", "Sketch012")
body.addObject(sketch13)
sketch13.AttachmentSupport = (doc.YZ_Plane, [""])
sketch13.MapMode = "FlatFace"
sketch13.AttachmentOffset = App.Placement(App.Vector(0, 0, 49.5), App.Rotation())
sketch13.addGeometry([
    Part.LineSegment(App.Vector(-42.6, 1, 0), App.Vector(-42.6, -5, 0)),
    Part.LineSegment(App.Vector(-42.6, -5, 0), App.Vector(-34.6, -5, 0)),
    Part.LineSegment(App.Vector(-34.6, -5, 0), App.Vector(-34.6, 1, 0)),
    Part.LineSegment(App.Vector(-34.6, 1, 0), App.Vector(-42.6, 1, 0)),
], False)
sketch13.addConstraint([
    Sketcher.Constraint("Coincident", 0, 2, 1, 1),
    Sketcher.Constraint("Coincident", 1, 2, 2, 1),
    Sketcher.Constraint("Coincident", 2, 2, 3, 1),
    Sketcher.Constraint("Coincident", 3, 2, 0, 1),
    Sketcher.Constraint("Vertical", 0),
    Sketcher.Constraint("Horizontal", 1),
    Sketcher.Constraint("Vertical", 2),
    Sketcher.Constraint("Horizontal", 3),
    Sketcher.Constraint("DistanceX", 1, 1, 1, 2, Q("8 mm")),
    Sketcher.Constraint("DistanceY", 0, 2, 0, 1, Q("6 mm")),
    Sketcher.Constraint("DistanceY", 0, 2, -1, 1, Q("5 mm")),
    Sketcher.Constraint("DistanceX", 0, 2, -1, 1, Q("42.6 mm")),
])
pocket10 = doc.addObject("PartDesign::Pocket", "Pocket009")
body.addObject(pocket10)
pocket10.Profile = sketch13
pocket10.Length = 5

# Sketch on YZ plane
sketch14 = doc.addObject("Sketcher::SketchObject", "Sketch013")
body.addObject(sketch14)
sketch14.AttachmentSupport = (doc.YZ_Plane, [""])
sketch14.MapMode = "FlatFace"
sketch14.AttachmentOffset = App.Placement(App.Vector(0, 0, 46.7), App.Rotation())
sketch14.addGeometry([
    Part.LineSegment(App.Vector(-28.6, 1, 0), App.Vector(-28.6, -5, 0)),
    Part.LineSegment(App.Vector(-28.6, -5, 0), App.Vector(-48.6, -5, 0)),
    Part.LineSegment(App.Vector(-48.6, -5, 0), App.Vector(-48.6, 1, 0)),
    Part.LineSegment(App.Vector(-48.6, 1, 0), App.Vector(-28.6, 1, 0)),
], False)
sketch14.addConstraint([
    Sketcher.Constraint("Coincident", 0, 2, 1, 1),
    Sketcher.Constraint("Coincident", 1, 2, 2, 1),
    Sketcher.Constraint("Coincident", 2, 2, 3, 1),
    Sketcher.Constraint("Coincident", 3, 2, 0, 1),
    Sketcher.Constraint("Vertical", 0),
    Sketcher.Constraint("Horizontal", 1),
    Sketcher.Constraint("Vertical", 2),
    Sketcher.Constraint("Horizontal", 3),
    Sketcher.Constraint("DistanceX", 1, 2, 1, 1, Q("20 mm")),
    Sketcher.Constraint("DistanceY", 0, 2, 0, 1, Q("6 mm")),
    Sketcher.Constraint("DistanceY", 0, 2, -1, 1, Q("5 mm")),
    Sketcher.Constraint("DistanceX", 0, 2, -1, 1, Q("28.6 mm")),
])
pocket11 = doc.addObject("PartDesign::Pocket", "Pocket010")
body.addObject(pocket11)
pocket11.Profile = sketch14
pocket11.Length = 0.6
pocket11.Reversed = True

# Sketch on YZ plane
sketch15 = doc.addObject("Sketcher::SketchObject", "Sketch014")
body.addObject(sketch15)
sketch15.AttachmentSupport = (doc.YZ_Plane, [""])
sketch15.MapMode = "FlatFace"
sketch15.AttachmentOffset = App.Placement(App.Vector(0, 0, -45.7), App.Rotation())
sketch15.addGeometry([
    Part.LineSegment(App.Vector(-40.6, 17.6, 0), App.Vector(-40.6, 10.6, 0)),
    Part.LineSegment(App.Vector(-40.6, 10.6, 0), App.Vector(-19.6, 10.6, 0)),
    Part.LineSegment(App.Vector(-19.6, 10.6, 0), App.Vector(-19.6, 17.6, 0)),
    Part.LineSegment(App.Vector(-19.6, 17.6, 0), App.Vector(-40.6, 17.6, 0)),
], False)
sketch15.addConstraint([
    Sketcher.Constraint("Coincident", 0, 2, 1, 1),
    Sketcher.Constraint("Coincident", 1, 2, 2, 1),
    Sketcher.Constraint("Coincident", 2, 2, 3, 1),
    Sketcher.Constraint("Coincident", 3, 2, 0, 1),
    Sketcher.Constraint("Vertical", 0),
    Sketcher.Constraint("Horizontal", 1),
    Sketcher.Constraint("Vertical", 2),
    Sketcher.Constraint("Horizontal", 3),
    Sketcher.Constraint("DistanceX", 1, 1, 1, 2, Q("21 mm")),
    Sketcher.Constraint("DistanceY", 0, 2, 0, 1, Q("7 mm")),
    Sketcher.Constraint("DistanceX", 0, 2, -1, 1, Q("40.6 mm")),
    Sketcher.Constraint("DistanceY", -1, 1, 0, 2, Q("10.6 mm")),
])
pocket12 = doc.addObject("PartDesign::Pocket", "Pocket011")
body.addObject(pocket12)
pocket12.Profile = sketch15
pocket12.Length = 0.6
doc.recompute()

chamfer = doc.addObject("PartDesign::Chamfer", "Chamfer")
body.addObject(chamfer)
chamfer.Base = (pocket12, edges_at(pocket12, [
    (-42.5, 22, 27),
    (1, 49, 27),
    (44.5, 22, 27),
    (1, -5, 27),
]))
chamfer.Size = 1

# Sketch on XZ plane
sketch16 = doc.addObject("Sketcher::SketchObject", "Sketch015")
body.addObject(sketch16)
sketch16.AttachmentSupport = (doc.XZ_Plane, [""])
sketch16.MapMode = "FlatFace"
sketch16.AttachmentOffset = App.Placement(App.Vector(0, 0, 50.2), App.Rotation())
sketch16.addGeometry([
    Part.LineSegment(App.Vector(7.3, 0, 0), App.Vector(7.3, -17, 0)),
    Part.LineSegment(App.Vector(7.3, -17, 0), App.Vector(-8.1, -17, 0)),
    Part.LineSegment(App.Vector(-8.1, -17, 0), App.Vector(-8.1, 0, 0)),
    Part.LineSegment(App.Vector(-8.1, 0, 0), App.Vector(7.3, 0, 0)),
], False)
sketch16.addConstraint([
    Sketcher.Constraint("Coincident", 0, 2, 1, 1),
    Sketcher.Constraint("Coincident", 1, 2, 2, 1),
    Sketcher.Constraint("Coincident", 2, 2, 3, 1),
    Sketcher.Constraint("Coincident", 3, 2, 0, 1),
    Sketcher.Constraint("Vertical", 0),
    Sketcher.Constraint("Horizontal", 1),
    Sketcher.Constraint("Vertical", 2),
    Sketcher.Constraint("Horizontal", 3),
    Sketcher.Constraint("PointOnObject", 2, 2, -1),
    Sketcher.Constraint("DistanceY", 0, 2, 0, 1, Q("17 mm")),
    Sketcher.Constraint("DistanceX", 1, 2, 1, 1, Q("15.4 mm")),
    Sketcher.Constraint("DistanceX", -1, 1, 0, 2, Q("7.3 mm")),
])
pocket13 = doc.addObject("PartDesign::Pocket", "Pocket012")
body.addObject(pocket13)
pocket13.Profile = sketch16
pocket13.Length = 0.6
pocket13.Reversed = True
doc.recompute()

chamfer2 = doc.addObject("PartDesign::Chamfer", "Chamfer001")
body.addObject(chamfer2)
chamfer2.Base = (pocket13, edges_at(pocket13, [
    (-43.7, -46.7, -5),
    (-43.7, 47.7, -5),
    (44.7, 47.7, -5),
    (44.7, -46.7, -5),
]))
chamfer2.Size = 1.9

# Sketch on XZ plane
sketch17 = doc.addObject("Sketcher::SketchObject", "Sketch016")
body.addObject(sketch17)
sketch17.AttachmentSupport = (doc.XZ_Plane, [""])
sketch17.MapMode = "FlatFace"
sketch17.AttachmentOffset = App.Placement(App.Vector(0, 0, 53), App.Rotation())
sketch17.addGeometry([
    Part.Circle(App.Vector(25, -14, 0), App.Vector(0, 0, 1), 1.2),
    Part.Circle(App.Vector(30, -14, 0), App.Vector(0, 0, 1), 1.2),
], False)
sketch17.addConstraint([
    Sketcher.Constraint("Equal", 0, 1),
    Sketcher.Constraint("Horizontal", 0, 3, 1, 3),
    Sketcher.Constraint("Diameter", 0, Q("2.4 mm")),
    Sketcher.Constraint("DistanceX", -1, 1, 0, 3, Q("25 mm")),
    Sketcher.Constraint("DistanceY", 0, 3, -1, 1, Q("14 mm")),
    Sketcher.Constraint("DistanceX", -1, 1, 1, 3, Q("30 mm")),
])
pocket14 = doc.addObject("PartDesign::Pocket", "Pocket013")
body.addObject(pocket14)
pocket14.Profile = sketch17
pocket14.Length = 3

# Sketch on YZ plane
sketch18 = doc.addObject("Sketcher::SketchObject", "Sketch017")
body.addObject(sketch18)
sketch18.AttachmentSupport = (doc.YZ_Plane, [""])
sketch18.MapMode = "FlatFace"
sketch18.AttachmentOffset = App.Placement(App.Vector(0, 0, -48.5), App.Rotation())
sketch18.addGeometry([
    Part.LineSegment(App.Vector(34.8, 21.6, 0), App.Vector(44.2, 21.6, 0)),  # 0
    Part.ArcOfCircle(Part.Circle(App.Vector(44.2, 18.2, 0), App.Vector(0, 0, 1), 3.4), math.radians(0.000003), math.radians(89.999997)),  # 1
    Part.LineSegment(App.Vector(47.6, 18.2, 0), App.Vector(47.6, 1.4, 0)),  # 2
    Part.ArcOfCircle(Part.Circle(App.Vector(44.2, 1.4, 0), App.Vector(0, 0, 1), 3.4), math.radians(-89.999997), math.radians(-0.000003)),  # 3
    Part.LineSegment(App.Vector(44.2, -2, 0), App.Vector(21.4, -2, 0)),  # 4
    Part.ArcOfCircle(Part.Circle(App.Vector(21.4, 1.4, 0), App.Vector(0, 0, 1), 3.4), math.radians(-179.999997), math.radians(-90.000003)),  # 5
    Part.LineSegment(App.Vector(18, 1.4, 0), App.Vector(18, 4.4, 0)),  # 6
    Part.ArcOfCircle(Part.Circle(App.Vector(21.4, 4.4, 0), App.Vector(0, 0, 1), 3.4), math.radians(90.000003), math.radians(179.999997)),  # 7
    Part.LineSegment(App.Vector(21.4, 7.8, 0), App.Vector(28, 7.8, 0)),  # 8
    Part.ArcOfCircle(Part.Circle(App.Vector(28, 11.2, 0), App.Vector(0, 0, 1), 3.4), math.radians(-89.999997), math.radians(-0.000003)),  # 9
    Part.LineSegment(App.Vector(31.4, 11.2, 0), App.Vector(31.4, 18.2, 0)),  # 10
    Part.ArcOfCircle(Part.Circle(App.Vector(34.8, 18.2, 0), App.Vector(0, 0, 1), 3.4), math.radians(90.000003), math.radians(179.999997)),  # 11
], False)
sketch18.addConstraint([
    Sketcher.Constraint("Tangent", 0, 2, 1, 2),
    Sketcher.Constraint("Tangent", 1, 1, 2, 1),
    Sketcher.Constraint("Tangent", 2, 2, 3, 2),
    Sketcher.Constraint("Tangent", 3, 1, 4, 1),
    Sketcher.Constraint("Tangent", 4, 2, 5, 2),
    Sketcher.Constraint("Tangent", 5, 1, 6, 1),
    Sketcher.Constraint("Tangent", 6, 2, 7, 2),
    Sketcher.Constraint("Tangent", 7, 1, 8, 1),
    Sketcher.Constraint("Tangent", 8, 2, 9, 1),
    Sketcher.Constraint("Tangent", 9, 2, 10, 1),
    Sketcher.Constraint("Tangent", 10, 2, 11, 2),
    Sketcher.Constraint("Tangent", 11, 1, 0, 1),
    Sketcher.Constraint("Horizontal", 0),
    Sketcher.Constraint("Vertical", 2),
    Sketcher.Constraint("Horizontal", 4),
    Sketcher.Constraint("Vertical", 6),
    Sketcher.Constraint("Horizontal", 8),
    Sketcher.Constraint("Vertical", 10),
    Sketcher.Constraint("Equal", 1, 3),
    Sketcher.Constraint("Equal", 3, 5),
    Sketcher.Constraint("Equal", 5, 7),
    Sketcher.Constraint("Equal", 7, 9),
    Sketcher.Constraint("Equal", 9, 11),
    Sketcher.Constraint("Radius", 1, Q("3.4 mm")),
    Sketcher.Constraint("DistanceY", 6, 1, 6, 2, Q("3 mm")),
    Sketcher.Constraint("DistanceY", 10, 1, 10, 2, Q("7 mm")),
    Sketcher.Constraint("DistanceX", 0, 1, 0, 2, Q("9.4 mm")),
    Sketcher.Constraint("DistanceX", 4, 2, 4, 1, Q("22.8 mm")),
    Sketcher.Constraint("DistanceX", -1, 1, 9, 3, Q("28 mm")),
    Sketcher.Constraint("DistanceY", 3, 1, -1, 1, Q("2 mm")),
])
pocket15 = doc.addObject("PartDesign::Pocket", "Pocket014")
body.addObject(pocket15)
pocket15.Profile = sketch18
pocket15.Length = 0.6
pocket15.Reversed = True
doc.recompute()

fillet = doc.addObject("PartDesign::Fillet", "Fillet")
body.addObject(fillet)
fillet.Base = (pocket15, edges_at(pocket15, [
    (-48.5, 32.8, -2),
    (-48.5, 18.996, -1.004),
    (-48.5, 18, 2.9),
    (-48.5, 18.996, 6.804),
    (-48.5, 24.7, 7.8),
    (-48.5, 30.404, 8.796),
    (-48.5, 31.4, 14.7),
    (-48.5, 32.396, 20.604),
    (-48.5, 39.5, 21.6),
    (-48.5, 46.604, 20.604),
    (-48.5, 47.6, 9.8),
    (-48.5, 46.604, -1.004),
]))
fillet.Radius = 0.4

doc.recompute()
